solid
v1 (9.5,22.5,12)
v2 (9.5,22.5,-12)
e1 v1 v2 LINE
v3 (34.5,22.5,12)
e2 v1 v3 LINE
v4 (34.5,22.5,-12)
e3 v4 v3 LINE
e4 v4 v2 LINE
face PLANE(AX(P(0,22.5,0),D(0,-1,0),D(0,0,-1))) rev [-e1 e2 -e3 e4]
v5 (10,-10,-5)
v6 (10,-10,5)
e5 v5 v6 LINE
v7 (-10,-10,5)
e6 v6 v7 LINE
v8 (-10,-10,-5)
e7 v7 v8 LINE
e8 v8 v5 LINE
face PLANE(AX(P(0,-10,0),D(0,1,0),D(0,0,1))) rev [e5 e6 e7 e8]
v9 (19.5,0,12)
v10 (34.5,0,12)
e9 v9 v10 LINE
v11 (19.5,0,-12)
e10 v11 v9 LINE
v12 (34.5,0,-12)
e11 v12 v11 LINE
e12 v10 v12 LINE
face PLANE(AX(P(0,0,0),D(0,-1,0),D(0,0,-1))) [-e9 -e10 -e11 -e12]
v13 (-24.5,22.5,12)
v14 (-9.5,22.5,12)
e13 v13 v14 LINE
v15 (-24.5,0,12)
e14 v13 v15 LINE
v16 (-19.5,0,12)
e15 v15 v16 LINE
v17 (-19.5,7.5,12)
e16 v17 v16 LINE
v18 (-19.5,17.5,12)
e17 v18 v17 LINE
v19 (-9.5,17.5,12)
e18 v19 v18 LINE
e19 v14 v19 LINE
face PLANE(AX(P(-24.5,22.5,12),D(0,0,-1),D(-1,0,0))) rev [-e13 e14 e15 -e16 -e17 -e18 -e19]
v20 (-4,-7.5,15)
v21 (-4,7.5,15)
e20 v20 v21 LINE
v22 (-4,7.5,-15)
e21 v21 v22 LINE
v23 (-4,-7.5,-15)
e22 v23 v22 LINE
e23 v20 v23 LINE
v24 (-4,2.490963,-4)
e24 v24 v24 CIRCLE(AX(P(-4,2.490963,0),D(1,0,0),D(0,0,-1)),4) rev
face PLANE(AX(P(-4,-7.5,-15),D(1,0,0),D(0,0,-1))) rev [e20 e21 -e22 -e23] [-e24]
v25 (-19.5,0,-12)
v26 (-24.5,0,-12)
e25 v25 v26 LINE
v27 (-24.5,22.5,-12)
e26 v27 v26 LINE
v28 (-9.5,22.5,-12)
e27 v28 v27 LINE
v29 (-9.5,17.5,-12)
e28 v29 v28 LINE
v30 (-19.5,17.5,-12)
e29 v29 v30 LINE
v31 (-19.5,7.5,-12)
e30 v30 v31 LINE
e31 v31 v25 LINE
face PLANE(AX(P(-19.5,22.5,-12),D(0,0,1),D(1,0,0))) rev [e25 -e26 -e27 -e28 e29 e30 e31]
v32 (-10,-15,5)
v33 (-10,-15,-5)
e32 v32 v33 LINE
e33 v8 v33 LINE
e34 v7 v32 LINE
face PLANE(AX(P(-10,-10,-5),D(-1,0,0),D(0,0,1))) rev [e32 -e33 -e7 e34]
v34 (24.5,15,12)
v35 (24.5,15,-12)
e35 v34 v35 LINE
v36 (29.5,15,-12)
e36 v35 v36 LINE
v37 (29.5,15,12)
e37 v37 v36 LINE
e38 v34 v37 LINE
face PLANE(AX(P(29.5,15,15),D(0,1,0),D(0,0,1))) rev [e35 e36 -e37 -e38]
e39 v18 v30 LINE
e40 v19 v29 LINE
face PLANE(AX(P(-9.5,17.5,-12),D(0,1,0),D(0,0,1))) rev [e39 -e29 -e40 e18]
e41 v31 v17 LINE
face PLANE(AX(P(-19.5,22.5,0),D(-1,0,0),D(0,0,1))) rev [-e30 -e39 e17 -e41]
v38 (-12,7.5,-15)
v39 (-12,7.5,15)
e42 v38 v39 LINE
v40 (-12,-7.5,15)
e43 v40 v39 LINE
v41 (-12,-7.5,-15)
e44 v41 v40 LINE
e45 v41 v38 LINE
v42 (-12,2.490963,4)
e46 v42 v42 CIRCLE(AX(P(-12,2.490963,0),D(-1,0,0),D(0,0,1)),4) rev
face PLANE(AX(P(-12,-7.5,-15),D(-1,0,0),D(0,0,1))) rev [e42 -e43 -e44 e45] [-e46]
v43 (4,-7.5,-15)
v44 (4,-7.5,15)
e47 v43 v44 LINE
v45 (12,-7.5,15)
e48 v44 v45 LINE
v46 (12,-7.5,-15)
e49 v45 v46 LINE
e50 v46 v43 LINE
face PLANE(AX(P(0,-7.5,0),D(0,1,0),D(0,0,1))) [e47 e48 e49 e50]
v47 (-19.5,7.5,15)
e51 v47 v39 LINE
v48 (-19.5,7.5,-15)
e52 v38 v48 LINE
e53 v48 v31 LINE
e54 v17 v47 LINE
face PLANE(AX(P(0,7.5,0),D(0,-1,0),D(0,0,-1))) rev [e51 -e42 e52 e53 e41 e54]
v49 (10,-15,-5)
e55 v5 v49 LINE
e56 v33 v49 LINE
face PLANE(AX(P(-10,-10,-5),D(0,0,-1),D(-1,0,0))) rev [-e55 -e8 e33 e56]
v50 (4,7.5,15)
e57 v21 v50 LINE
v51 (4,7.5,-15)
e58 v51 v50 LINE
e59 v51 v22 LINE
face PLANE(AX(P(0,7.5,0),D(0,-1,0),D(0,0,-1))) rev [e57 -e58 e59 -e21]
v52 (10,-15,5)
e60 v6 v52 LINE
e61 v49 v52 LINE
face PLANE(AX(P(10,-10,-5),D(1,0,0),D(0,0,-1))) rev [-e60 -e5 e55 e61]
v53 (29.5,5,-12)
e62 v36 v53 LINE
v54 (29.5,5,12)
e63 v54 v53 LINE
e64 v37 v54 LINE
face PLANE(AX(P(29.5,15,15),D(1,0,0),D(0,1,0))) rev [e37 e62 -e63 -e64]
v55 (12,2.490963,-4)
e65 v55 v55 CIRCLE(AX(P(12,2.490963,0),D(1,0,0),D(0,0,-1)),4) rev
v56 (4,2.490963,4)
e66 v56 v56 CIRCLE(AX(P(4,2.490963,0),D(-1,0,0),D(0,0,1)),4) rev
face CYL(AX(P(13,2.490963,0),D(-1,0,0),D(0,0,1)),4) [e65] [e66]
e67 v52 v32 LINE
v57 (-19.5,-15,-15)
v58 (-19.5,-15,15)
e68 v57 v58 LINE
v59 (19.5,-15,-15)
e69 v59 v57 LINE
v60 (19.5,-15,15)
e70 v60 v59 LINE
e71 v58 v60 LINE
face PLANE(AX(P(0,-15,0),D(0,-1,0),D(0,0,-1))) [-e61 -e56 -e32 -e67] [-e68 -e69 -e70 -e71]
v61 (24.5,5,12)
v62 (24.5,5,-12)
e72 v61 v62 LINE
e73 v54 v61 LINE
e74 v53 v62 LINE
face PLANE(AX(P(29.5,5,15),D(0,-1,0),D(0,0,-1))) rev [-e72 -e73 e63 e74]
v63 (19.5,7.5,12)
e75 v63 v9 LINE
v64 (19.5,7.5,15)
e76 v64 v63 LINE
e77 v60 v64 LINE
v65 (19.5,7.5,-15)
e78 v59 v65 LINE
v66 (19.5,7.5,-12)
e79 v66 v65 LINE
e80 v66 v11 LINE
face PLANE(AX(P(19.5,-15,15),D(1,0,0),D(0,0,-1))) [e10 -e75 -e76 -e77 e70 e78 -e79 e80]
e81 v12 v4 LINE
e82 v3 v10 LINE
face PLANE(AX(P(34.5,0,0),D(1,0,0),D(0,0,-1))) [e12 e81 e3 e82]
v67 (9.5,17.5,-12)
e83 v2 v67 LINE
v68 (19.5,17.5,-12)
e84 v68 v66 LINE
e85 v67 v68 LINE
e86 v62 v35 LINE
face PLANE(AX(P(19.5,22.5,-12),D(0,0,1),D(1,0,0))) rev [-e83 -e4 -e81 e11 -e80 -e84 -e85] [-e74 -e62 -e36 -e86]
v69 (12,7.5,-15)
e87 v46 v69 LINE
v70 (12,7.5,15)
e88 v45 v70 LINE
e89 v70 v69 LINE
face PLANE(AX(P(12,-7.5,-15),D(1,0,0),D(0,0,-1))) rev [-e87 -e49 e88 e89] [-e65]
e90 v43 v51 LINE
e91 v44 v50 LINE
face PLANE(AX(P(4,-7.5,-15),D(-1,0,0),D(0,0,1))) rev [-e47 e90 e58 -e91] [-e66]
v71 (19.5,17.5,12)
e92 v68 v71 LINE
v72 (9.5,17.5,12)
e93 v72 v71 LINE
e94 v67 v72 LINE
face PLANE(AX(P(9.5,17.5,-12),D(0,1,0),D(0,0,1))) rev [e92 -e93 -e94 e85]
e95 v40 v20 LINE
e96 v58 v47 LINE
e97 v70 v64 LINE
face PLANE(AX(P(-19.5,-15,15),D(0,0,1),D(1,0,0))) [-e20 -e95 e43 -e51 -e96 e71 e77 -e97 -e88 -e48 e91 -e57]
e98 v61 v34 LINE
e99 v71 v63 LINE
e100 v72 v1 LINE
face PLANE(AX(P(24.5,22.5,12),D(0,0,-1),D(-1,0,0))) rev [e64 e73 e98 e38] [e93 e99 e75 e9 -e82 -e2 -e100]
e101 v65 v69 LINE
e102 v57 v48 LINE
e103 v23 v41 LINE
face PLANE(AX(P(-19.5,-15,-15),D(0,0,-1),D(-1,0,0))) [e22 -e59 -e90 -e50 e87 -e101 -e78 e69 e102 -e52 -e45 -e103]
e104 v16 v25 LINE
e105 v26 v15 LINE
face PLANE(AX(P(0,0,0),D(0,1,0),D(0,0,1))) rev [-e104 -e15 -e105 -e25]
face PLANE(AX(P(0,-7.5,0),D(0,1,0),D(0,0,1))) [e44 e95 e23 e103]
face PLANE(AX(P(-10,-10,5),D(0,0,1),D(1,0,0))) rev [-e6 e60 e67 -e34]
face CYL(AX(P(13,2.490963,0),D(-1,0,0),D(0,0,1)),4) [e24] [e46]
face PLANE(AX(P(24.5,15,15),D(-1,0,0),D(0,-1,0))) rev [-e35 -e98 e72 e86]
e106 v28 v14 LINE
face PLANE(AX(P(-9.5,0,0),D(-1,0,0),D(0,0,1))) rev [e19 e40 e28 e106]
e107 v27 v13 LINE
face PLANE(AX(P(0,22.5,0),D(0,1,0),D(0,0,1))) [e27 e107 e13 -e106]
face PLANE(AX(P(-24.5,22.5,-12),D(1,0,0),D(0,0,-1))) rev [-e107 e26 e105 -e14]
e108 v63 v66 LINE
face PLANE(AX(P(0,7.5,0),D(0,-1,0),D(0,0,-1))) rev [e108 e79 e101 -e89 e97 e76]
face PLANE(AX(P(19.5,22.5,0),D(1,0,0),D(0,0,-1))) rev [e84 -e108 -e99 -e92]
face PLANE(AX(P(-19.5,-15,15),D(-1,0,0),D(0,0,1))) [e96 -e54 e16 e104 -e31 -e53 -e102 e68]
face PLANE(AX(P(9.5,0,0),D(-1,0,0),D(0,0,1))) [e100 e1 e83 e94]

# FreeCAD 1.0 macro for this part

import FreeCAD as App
import Part
import Sketcher
from FreeCAD import Vector
Q = App.Units.Quantity


def add_polygon(sketch, points):
    """Adds a closed chain of lines whose ends are joined by coincident constraints."""
    first, n = sketch.GeometryCount, len(points)
    for a, b in zip(points, points[1:] + points[:1]):
        sketch.addGeometry(Part.LineSegment(App.Vector(*a, 0), App.Vector(*b, 0)), False)
    for i in range(n):
        sketch.addConstraint(Sketcher.Constraint("Coincident", first + i, 2, first + (i + 1) % n, 1))

doc = App.newDocument("Part")
body = doc.addObject("PartDesign::Body", "Body")

sketch1 = doc.addObject("Sketcher::SketchObject", "Sketch")
body.addObject(sketch1)
sketch1.AttachmentSupport = (doc.XZ_Plane, [""])
sketch1.MapMode = "FlatFace"
add_polygon(sketch1, [(-19.5, -15), (-19.5, 15), (19.5, 15), (19.5, -15)])
sketch1.addConstraint([
    Sketcher.Constraint("Vertical", 0),
    Sketcher.Constraint("Horizontal", 1),
    Sketcher.Constraint("Vertical", 2),
    Sketcher.Constraint("Horizontal", 3),
    Sketcher.Constraint("Symmetric", 0, 2, 2, 2, -1, 1),
    Sketcher.Constraint("DistanceX", 1, 1, 1, 2, Q("39 mm")),
    Sketcher.Constraint("DistanceY", 0, 1, 0, 2, Q("30 mm")),
])
pad1 = doc.addObject("PartDesign::Pad", "Pad")
body.addObject(pad1)
pad1.Profile = sketch1
pad1.Type = "TwoLengths"
pad1.Length = 7.5
pad1.Length2 = 15
pad1.Reversed = True

sketch2 = doc.addObject("Sketcher::SketchObject", "Sketch001")
body.addObject(sketch2)
sketch2.AttachmentSupport = (doc.XZ_Plane, [""])
sketch2.MapMode = "FlatFace"
add_polygon(sketch2, [(-19.5, -12), (-24.5, -12), (-24.5, 12), (-19.5, 12)])
add_polygon(sketch2, [(19.5, -12), (19.5, 12), (24.5, 12), (24.5, -12)])
sketch2.addConstraint([
    Sketcher.Constraint("Horizontal", 0),
    Sketcher.Constraint("Vertical", 1),
    Sketcher.Constraint("Horizontal", 2),
    Sketcher.Constraint("Vertical", 3),
    Sketcher.Constraint("Vertical", 4),
    Sketcher.Constraint("Horizontal", 5),
    Sketcher.Constraint("Vertical", 6),
    Sketcher.Constraint("Horizontal", 7),
    Sketcher.Constraint("Symmetric", 3, 2, 4, 2, -1, 1),
    Sketcher.Constraint("Symmetric", 1, 2, 6, 2, -1, 1),
    Sketcher.Constraint("Horizontal", 2, 2, 4, 2),
    Sketcher.Constraint("DistanceX", 0, 2, 0, 1, Q("5 mm")),
    Sketcher.Constraint("DistanceY", 1, 1, 1, 2, Q("24 mm")),
    Sketcher.Constraint("DistanceX", 2, 2, 4, 2, Q("39 mm")),
])
pad2 = doc.addObject("PartDesign::Pad", "Pad001")
body.addObject(pad2)
pad2.Profile = sketch2
pad2.Length = 22.5
pad2.Reversed = True

sketch3 = doc.addObject("Sketcher::SketchObject", "Sketch002")
body.addObject(sketch3)
sketch3.AttachmentSupport = (doc.YZ_Plane, [""])
sketch3.MapMode = "FlatFace"
sketch3.AttachmentOffset = App.Placement(Vector(0, 0, -19.5), App.Rotation())
add_polygon(sketch3, [(22.5, 12), (17.5, 12), (17.5, -12), (22.5, -12)])
sketch3.addConstraint([
    Sketcher.Constraint("Horizontal", 0),
    Sketcher.Constraint("Vertical", 1),
    Sketcher.Constraint("Horizontal", 2),
    Sketcher.Constraint("Vertical", 3),
    Sketcher.Constraint("DistanceX", 0, 2, 0, 1, Q("5 mm")),
    Sketcher.Constraint("DistanceY", 1, 2, 1, 1, Q("24 mm")),
    Sketcher.Constraint("DistanceY", -1, 1, 0, 2, Q("12 mm")),
    Sketcher.Constraint("DistanceX", -1, 1, 0, 2, Q("17.5 mm")),
])
pad3 = doc.addObject("PartDesign::Pad", "Pad002")
body.addObject(pad3)
pad3.Profile = sketch3
pad3.Length = 10

sketch4 = doc.addObject("Sketcher::SketchObject", "Sketch003")
body.addObject(sketch4)
sketch4.AttachmentSupport = (doc.YZ_Plane, [""])
sketch4.MapMode = "FlatFace"
sketch4.AttachmentOffset = App.Placement(Vector(0, 0, 19.5), App.Rotation())
add_polygon(sketch4, [(22.5, -12), (17.5, -12), (17.5, 12), (22.5, 12)])
sketch4.addConstraint([
    Sketcher.Constraint("Horizontal", 0),
    Sketcher.Constraint("Vertical", 1),
    Sketcher.Constraint("Horizontal", 2),
    Sketcher.Constraint("Vertical", 3),
    Sketcher.Constraint("DistanceX", 0, 2, 0, 1, Q("5 mm")),
    Sketcher.Constraint("DistanceY", 1, 1, 1, 2, Q("24 mm")),
    Sketcher.Constraint("DistanceY", 0, 2, -1, 1, Q("12 mm")),
    Sketcher.Constraint("DistanceX", -1, 1, 0, 2, Q("17.5 mm")),
])
pad4 = doc.addObject("PartDesign::Pad", "Pad003")
body.addObject(pad4)
pad4.Profile = sketch4
pad4.Length = 10
pad4.Reversed = True

sketch5 = doc.addObject("Sketcher::SketchObject", "Sketch004")
body.addObject(sketch5)
sketch5.AttachmentSupport = (doc.YZ_Plane, [""])
sketch5.MapMode = "FlatFace"
sketch5.AttachmentOffset = App.Placement(Vector(0, 0, 24.5), App.Rotation())
add_polygon(sketch5, [(22.5, 12), (0, 12), (0, -12), (22.5, -12)])
sketch5.addConstraint([
    Sketcher.Constraint("Horizontal", 0),
    Sketcher.Constraint("Vertical", 1),
    Sketcher.Constraint("Horizontal", 2),
    Sketcher.Constraint("Vertical", 3),
    Sketcher.Constraint("Symmetric", 0, 2, 1, 2, -1, 1),
    Sketcher.Constraint("DistanceY", 1, 2, 1, 1, Q("24 mm")),
    Sketcher.Constraint("DistanceX", 0, 2, 0, 1, Q("22.5 mm")),
])
pad5 = doc.addObject("PartDesign::Pad", "Pad004")
body.addObject(pad5)
pad5.Profile = sketch5
pad5.Length = 10

sketch6 = doc.addObject("Sketcher::SketchObject", "Sketch005")
body.addObject(sketch6)
sketch6.AttachmentSupport = (doc.XY_Plane, [""])
sketch6.MapMode = "FlatFace"
sketch6.AttachmentOffset = App.Placement(Vector(0, 0, -12), App.Rotation())
add_polygon(sketch6, [(29.5, 15), (29.5, 5), (24.5, 5), (24.5, 15)])
sketch6.addConstraint([
    Sketcher.Constraint("Vertical", 0),
    Sketcher.Constraint("Horizontal", 1),
    Sketcher.Constraint("Vertical", 2),
    Sketcher.Constraint("Horizontal", 3),
    Sketcher.Constraint("DistanceX", 1, 2, 1, 1, Q("5 mm")),
    Sketcher.Constraint("DistanceY", 0, 2, 0, 1, Q("10 mm")),
    Sketcher.Constraint("DistanceY", -1, 1, 0, 2, Q("5 mm")),
    Sketcher.Constraint("DistanceX", -1, 1, 0, 2, Q("29.5 mm")),
])
pocket1 = doc.addObject("PartDesign::Pocket", "Pocket")
body.addObject(pocket1)
pocket1.Profile = sketch6
pocket1.Type = "ThroughAll"
pocket1.Reversed = True

sketch7 = doc.addObject("Sketcher::SketchObject", "Sketch006")
body.addObject(sketch7)
sketch7.AttachmentSupport = (doc.XZ_Plane, [""])
sketch7.MapMode = "FlatFace"
sketch7.AttachmentOffset = App.Placement(Vector(0, 0, -7.5), App.Rotation())
add_polygon(sketch7, [(-12, -15), (-12, 15), (-4, 15), (-4, -15)])
add_polygon(sketch7, [(4, -15), (4, 15), (12, 15), (12, -15)])
sketch7.addConstraint([
    Sketcher.Constraint("Vertical", 0),
    Sketcher.Constraint("Horizontal", 1),
    Sketcher.Constraint("Vertical", 2),
    Sketcher.Constraint("Horizontal", 3),
    Sketcher.Constraint("Vertical", 4),
    Sketcher.Constraint("Horizontal", 5),
    Sketcher.Constraint("Vertical", 6),
    Sketcher.Constraint("Horizontal", 7),
    Sketcher.Constraint("Symmetric", 2, 2, 4, 2, -1, 1),
    Sketcher.Constraint("Symmetric", 0, 2, 6, 2, -1, 1),
    Sketcher.Constraint("Horizontal", 1, 2, 4, 2),
    Sketcher.Constraint("DistanceX", 1, 1, 1, 2, Q("8 mm")),
    Sketcher.Constraint("DistanceY", 0, 1, 0, 2, Q("30 mm")),
    Sketcher.Constraint("DistanceX", 0, 2, -1, 1, Q("12 mm")),
])
pocket2 = doc.addObject("PartDesign::Pocket", "Pocket001")
body.addObject(pocket2)
pocket2.Profile = sketch7
pocket2.Length = 15
pocket2.Reversed = True

sketch8 = doc.addObject("Sketcher::SketchObject", "Sketch007")
body.addObject(sketch8)
sketch8.AttachmentSupport = (doc.YZ_Plane, [""])
sketch8.MapMode = "FlatFace"
sketch8.AttachmentOffset = App.Placement(Vector(0, 0, -12), App.Rotation())
sketch8.addGeometry(Part.Circle(Vector(2.490963, 0, 0), Vector(0, 0, 1), 4), False)
sketch8.addConstraint([
    Sketcher.Constraint("PointOnObject", 0, 3, -1),
    Sketcher.Constraint("Diameter", 0, Q("8 mm")),
    Sketcher.Constraint("DistanceX", -1, 1, 0, 3, Q("2.490963 mm")),
])
pad6 = doc.addObject("PartDesign::Pad", "Pad005")
body.addObject(pad6)
pad6.Profile = sketch8
pad6.Length = 25

sketch9 = doc.addObject("Sketcher::SketchObject", "Sketch008")
body.addObject(sketch9)
sketch9.AttachmentSupport = (doc.XZ_Plane, [""])
sketch9.MapMode = "FlatFace"
sketch9.AttachmentOffset = App.Placement(Vector(0, 0, 15), App.Rotation())
add_polygon(sketch9, [(-10, 5), (-10, -5), (10, -5), (10, 5)])
sketch9.addConstraint([
    Sketcher.Constraint("Vertical", 0),
    Sketcher.Constraint("Horizontal", 1),
    Sketcher.Constraint("Vertical", 2),
    Sketcher.Constraint("Horizontal", 3),
    Sketcher.Constraint("Symmetric", 0, 2, 2, 2, -1, 1),
    Sketcher.Constraint("DistanceX", 1, 1, 1, 2, Q("20 mm")),
    Sketcher.Constraint("DistanceY", 0, 2, 0, 1, Q("10 mm")),
])
pocket3 = doc.addObject("PartDesign::Pocket", "Pocket002")
body.addObject(pocket3)
pocket3.Profile = sketch9
pocket3.Length = 5

doc.recompute()
